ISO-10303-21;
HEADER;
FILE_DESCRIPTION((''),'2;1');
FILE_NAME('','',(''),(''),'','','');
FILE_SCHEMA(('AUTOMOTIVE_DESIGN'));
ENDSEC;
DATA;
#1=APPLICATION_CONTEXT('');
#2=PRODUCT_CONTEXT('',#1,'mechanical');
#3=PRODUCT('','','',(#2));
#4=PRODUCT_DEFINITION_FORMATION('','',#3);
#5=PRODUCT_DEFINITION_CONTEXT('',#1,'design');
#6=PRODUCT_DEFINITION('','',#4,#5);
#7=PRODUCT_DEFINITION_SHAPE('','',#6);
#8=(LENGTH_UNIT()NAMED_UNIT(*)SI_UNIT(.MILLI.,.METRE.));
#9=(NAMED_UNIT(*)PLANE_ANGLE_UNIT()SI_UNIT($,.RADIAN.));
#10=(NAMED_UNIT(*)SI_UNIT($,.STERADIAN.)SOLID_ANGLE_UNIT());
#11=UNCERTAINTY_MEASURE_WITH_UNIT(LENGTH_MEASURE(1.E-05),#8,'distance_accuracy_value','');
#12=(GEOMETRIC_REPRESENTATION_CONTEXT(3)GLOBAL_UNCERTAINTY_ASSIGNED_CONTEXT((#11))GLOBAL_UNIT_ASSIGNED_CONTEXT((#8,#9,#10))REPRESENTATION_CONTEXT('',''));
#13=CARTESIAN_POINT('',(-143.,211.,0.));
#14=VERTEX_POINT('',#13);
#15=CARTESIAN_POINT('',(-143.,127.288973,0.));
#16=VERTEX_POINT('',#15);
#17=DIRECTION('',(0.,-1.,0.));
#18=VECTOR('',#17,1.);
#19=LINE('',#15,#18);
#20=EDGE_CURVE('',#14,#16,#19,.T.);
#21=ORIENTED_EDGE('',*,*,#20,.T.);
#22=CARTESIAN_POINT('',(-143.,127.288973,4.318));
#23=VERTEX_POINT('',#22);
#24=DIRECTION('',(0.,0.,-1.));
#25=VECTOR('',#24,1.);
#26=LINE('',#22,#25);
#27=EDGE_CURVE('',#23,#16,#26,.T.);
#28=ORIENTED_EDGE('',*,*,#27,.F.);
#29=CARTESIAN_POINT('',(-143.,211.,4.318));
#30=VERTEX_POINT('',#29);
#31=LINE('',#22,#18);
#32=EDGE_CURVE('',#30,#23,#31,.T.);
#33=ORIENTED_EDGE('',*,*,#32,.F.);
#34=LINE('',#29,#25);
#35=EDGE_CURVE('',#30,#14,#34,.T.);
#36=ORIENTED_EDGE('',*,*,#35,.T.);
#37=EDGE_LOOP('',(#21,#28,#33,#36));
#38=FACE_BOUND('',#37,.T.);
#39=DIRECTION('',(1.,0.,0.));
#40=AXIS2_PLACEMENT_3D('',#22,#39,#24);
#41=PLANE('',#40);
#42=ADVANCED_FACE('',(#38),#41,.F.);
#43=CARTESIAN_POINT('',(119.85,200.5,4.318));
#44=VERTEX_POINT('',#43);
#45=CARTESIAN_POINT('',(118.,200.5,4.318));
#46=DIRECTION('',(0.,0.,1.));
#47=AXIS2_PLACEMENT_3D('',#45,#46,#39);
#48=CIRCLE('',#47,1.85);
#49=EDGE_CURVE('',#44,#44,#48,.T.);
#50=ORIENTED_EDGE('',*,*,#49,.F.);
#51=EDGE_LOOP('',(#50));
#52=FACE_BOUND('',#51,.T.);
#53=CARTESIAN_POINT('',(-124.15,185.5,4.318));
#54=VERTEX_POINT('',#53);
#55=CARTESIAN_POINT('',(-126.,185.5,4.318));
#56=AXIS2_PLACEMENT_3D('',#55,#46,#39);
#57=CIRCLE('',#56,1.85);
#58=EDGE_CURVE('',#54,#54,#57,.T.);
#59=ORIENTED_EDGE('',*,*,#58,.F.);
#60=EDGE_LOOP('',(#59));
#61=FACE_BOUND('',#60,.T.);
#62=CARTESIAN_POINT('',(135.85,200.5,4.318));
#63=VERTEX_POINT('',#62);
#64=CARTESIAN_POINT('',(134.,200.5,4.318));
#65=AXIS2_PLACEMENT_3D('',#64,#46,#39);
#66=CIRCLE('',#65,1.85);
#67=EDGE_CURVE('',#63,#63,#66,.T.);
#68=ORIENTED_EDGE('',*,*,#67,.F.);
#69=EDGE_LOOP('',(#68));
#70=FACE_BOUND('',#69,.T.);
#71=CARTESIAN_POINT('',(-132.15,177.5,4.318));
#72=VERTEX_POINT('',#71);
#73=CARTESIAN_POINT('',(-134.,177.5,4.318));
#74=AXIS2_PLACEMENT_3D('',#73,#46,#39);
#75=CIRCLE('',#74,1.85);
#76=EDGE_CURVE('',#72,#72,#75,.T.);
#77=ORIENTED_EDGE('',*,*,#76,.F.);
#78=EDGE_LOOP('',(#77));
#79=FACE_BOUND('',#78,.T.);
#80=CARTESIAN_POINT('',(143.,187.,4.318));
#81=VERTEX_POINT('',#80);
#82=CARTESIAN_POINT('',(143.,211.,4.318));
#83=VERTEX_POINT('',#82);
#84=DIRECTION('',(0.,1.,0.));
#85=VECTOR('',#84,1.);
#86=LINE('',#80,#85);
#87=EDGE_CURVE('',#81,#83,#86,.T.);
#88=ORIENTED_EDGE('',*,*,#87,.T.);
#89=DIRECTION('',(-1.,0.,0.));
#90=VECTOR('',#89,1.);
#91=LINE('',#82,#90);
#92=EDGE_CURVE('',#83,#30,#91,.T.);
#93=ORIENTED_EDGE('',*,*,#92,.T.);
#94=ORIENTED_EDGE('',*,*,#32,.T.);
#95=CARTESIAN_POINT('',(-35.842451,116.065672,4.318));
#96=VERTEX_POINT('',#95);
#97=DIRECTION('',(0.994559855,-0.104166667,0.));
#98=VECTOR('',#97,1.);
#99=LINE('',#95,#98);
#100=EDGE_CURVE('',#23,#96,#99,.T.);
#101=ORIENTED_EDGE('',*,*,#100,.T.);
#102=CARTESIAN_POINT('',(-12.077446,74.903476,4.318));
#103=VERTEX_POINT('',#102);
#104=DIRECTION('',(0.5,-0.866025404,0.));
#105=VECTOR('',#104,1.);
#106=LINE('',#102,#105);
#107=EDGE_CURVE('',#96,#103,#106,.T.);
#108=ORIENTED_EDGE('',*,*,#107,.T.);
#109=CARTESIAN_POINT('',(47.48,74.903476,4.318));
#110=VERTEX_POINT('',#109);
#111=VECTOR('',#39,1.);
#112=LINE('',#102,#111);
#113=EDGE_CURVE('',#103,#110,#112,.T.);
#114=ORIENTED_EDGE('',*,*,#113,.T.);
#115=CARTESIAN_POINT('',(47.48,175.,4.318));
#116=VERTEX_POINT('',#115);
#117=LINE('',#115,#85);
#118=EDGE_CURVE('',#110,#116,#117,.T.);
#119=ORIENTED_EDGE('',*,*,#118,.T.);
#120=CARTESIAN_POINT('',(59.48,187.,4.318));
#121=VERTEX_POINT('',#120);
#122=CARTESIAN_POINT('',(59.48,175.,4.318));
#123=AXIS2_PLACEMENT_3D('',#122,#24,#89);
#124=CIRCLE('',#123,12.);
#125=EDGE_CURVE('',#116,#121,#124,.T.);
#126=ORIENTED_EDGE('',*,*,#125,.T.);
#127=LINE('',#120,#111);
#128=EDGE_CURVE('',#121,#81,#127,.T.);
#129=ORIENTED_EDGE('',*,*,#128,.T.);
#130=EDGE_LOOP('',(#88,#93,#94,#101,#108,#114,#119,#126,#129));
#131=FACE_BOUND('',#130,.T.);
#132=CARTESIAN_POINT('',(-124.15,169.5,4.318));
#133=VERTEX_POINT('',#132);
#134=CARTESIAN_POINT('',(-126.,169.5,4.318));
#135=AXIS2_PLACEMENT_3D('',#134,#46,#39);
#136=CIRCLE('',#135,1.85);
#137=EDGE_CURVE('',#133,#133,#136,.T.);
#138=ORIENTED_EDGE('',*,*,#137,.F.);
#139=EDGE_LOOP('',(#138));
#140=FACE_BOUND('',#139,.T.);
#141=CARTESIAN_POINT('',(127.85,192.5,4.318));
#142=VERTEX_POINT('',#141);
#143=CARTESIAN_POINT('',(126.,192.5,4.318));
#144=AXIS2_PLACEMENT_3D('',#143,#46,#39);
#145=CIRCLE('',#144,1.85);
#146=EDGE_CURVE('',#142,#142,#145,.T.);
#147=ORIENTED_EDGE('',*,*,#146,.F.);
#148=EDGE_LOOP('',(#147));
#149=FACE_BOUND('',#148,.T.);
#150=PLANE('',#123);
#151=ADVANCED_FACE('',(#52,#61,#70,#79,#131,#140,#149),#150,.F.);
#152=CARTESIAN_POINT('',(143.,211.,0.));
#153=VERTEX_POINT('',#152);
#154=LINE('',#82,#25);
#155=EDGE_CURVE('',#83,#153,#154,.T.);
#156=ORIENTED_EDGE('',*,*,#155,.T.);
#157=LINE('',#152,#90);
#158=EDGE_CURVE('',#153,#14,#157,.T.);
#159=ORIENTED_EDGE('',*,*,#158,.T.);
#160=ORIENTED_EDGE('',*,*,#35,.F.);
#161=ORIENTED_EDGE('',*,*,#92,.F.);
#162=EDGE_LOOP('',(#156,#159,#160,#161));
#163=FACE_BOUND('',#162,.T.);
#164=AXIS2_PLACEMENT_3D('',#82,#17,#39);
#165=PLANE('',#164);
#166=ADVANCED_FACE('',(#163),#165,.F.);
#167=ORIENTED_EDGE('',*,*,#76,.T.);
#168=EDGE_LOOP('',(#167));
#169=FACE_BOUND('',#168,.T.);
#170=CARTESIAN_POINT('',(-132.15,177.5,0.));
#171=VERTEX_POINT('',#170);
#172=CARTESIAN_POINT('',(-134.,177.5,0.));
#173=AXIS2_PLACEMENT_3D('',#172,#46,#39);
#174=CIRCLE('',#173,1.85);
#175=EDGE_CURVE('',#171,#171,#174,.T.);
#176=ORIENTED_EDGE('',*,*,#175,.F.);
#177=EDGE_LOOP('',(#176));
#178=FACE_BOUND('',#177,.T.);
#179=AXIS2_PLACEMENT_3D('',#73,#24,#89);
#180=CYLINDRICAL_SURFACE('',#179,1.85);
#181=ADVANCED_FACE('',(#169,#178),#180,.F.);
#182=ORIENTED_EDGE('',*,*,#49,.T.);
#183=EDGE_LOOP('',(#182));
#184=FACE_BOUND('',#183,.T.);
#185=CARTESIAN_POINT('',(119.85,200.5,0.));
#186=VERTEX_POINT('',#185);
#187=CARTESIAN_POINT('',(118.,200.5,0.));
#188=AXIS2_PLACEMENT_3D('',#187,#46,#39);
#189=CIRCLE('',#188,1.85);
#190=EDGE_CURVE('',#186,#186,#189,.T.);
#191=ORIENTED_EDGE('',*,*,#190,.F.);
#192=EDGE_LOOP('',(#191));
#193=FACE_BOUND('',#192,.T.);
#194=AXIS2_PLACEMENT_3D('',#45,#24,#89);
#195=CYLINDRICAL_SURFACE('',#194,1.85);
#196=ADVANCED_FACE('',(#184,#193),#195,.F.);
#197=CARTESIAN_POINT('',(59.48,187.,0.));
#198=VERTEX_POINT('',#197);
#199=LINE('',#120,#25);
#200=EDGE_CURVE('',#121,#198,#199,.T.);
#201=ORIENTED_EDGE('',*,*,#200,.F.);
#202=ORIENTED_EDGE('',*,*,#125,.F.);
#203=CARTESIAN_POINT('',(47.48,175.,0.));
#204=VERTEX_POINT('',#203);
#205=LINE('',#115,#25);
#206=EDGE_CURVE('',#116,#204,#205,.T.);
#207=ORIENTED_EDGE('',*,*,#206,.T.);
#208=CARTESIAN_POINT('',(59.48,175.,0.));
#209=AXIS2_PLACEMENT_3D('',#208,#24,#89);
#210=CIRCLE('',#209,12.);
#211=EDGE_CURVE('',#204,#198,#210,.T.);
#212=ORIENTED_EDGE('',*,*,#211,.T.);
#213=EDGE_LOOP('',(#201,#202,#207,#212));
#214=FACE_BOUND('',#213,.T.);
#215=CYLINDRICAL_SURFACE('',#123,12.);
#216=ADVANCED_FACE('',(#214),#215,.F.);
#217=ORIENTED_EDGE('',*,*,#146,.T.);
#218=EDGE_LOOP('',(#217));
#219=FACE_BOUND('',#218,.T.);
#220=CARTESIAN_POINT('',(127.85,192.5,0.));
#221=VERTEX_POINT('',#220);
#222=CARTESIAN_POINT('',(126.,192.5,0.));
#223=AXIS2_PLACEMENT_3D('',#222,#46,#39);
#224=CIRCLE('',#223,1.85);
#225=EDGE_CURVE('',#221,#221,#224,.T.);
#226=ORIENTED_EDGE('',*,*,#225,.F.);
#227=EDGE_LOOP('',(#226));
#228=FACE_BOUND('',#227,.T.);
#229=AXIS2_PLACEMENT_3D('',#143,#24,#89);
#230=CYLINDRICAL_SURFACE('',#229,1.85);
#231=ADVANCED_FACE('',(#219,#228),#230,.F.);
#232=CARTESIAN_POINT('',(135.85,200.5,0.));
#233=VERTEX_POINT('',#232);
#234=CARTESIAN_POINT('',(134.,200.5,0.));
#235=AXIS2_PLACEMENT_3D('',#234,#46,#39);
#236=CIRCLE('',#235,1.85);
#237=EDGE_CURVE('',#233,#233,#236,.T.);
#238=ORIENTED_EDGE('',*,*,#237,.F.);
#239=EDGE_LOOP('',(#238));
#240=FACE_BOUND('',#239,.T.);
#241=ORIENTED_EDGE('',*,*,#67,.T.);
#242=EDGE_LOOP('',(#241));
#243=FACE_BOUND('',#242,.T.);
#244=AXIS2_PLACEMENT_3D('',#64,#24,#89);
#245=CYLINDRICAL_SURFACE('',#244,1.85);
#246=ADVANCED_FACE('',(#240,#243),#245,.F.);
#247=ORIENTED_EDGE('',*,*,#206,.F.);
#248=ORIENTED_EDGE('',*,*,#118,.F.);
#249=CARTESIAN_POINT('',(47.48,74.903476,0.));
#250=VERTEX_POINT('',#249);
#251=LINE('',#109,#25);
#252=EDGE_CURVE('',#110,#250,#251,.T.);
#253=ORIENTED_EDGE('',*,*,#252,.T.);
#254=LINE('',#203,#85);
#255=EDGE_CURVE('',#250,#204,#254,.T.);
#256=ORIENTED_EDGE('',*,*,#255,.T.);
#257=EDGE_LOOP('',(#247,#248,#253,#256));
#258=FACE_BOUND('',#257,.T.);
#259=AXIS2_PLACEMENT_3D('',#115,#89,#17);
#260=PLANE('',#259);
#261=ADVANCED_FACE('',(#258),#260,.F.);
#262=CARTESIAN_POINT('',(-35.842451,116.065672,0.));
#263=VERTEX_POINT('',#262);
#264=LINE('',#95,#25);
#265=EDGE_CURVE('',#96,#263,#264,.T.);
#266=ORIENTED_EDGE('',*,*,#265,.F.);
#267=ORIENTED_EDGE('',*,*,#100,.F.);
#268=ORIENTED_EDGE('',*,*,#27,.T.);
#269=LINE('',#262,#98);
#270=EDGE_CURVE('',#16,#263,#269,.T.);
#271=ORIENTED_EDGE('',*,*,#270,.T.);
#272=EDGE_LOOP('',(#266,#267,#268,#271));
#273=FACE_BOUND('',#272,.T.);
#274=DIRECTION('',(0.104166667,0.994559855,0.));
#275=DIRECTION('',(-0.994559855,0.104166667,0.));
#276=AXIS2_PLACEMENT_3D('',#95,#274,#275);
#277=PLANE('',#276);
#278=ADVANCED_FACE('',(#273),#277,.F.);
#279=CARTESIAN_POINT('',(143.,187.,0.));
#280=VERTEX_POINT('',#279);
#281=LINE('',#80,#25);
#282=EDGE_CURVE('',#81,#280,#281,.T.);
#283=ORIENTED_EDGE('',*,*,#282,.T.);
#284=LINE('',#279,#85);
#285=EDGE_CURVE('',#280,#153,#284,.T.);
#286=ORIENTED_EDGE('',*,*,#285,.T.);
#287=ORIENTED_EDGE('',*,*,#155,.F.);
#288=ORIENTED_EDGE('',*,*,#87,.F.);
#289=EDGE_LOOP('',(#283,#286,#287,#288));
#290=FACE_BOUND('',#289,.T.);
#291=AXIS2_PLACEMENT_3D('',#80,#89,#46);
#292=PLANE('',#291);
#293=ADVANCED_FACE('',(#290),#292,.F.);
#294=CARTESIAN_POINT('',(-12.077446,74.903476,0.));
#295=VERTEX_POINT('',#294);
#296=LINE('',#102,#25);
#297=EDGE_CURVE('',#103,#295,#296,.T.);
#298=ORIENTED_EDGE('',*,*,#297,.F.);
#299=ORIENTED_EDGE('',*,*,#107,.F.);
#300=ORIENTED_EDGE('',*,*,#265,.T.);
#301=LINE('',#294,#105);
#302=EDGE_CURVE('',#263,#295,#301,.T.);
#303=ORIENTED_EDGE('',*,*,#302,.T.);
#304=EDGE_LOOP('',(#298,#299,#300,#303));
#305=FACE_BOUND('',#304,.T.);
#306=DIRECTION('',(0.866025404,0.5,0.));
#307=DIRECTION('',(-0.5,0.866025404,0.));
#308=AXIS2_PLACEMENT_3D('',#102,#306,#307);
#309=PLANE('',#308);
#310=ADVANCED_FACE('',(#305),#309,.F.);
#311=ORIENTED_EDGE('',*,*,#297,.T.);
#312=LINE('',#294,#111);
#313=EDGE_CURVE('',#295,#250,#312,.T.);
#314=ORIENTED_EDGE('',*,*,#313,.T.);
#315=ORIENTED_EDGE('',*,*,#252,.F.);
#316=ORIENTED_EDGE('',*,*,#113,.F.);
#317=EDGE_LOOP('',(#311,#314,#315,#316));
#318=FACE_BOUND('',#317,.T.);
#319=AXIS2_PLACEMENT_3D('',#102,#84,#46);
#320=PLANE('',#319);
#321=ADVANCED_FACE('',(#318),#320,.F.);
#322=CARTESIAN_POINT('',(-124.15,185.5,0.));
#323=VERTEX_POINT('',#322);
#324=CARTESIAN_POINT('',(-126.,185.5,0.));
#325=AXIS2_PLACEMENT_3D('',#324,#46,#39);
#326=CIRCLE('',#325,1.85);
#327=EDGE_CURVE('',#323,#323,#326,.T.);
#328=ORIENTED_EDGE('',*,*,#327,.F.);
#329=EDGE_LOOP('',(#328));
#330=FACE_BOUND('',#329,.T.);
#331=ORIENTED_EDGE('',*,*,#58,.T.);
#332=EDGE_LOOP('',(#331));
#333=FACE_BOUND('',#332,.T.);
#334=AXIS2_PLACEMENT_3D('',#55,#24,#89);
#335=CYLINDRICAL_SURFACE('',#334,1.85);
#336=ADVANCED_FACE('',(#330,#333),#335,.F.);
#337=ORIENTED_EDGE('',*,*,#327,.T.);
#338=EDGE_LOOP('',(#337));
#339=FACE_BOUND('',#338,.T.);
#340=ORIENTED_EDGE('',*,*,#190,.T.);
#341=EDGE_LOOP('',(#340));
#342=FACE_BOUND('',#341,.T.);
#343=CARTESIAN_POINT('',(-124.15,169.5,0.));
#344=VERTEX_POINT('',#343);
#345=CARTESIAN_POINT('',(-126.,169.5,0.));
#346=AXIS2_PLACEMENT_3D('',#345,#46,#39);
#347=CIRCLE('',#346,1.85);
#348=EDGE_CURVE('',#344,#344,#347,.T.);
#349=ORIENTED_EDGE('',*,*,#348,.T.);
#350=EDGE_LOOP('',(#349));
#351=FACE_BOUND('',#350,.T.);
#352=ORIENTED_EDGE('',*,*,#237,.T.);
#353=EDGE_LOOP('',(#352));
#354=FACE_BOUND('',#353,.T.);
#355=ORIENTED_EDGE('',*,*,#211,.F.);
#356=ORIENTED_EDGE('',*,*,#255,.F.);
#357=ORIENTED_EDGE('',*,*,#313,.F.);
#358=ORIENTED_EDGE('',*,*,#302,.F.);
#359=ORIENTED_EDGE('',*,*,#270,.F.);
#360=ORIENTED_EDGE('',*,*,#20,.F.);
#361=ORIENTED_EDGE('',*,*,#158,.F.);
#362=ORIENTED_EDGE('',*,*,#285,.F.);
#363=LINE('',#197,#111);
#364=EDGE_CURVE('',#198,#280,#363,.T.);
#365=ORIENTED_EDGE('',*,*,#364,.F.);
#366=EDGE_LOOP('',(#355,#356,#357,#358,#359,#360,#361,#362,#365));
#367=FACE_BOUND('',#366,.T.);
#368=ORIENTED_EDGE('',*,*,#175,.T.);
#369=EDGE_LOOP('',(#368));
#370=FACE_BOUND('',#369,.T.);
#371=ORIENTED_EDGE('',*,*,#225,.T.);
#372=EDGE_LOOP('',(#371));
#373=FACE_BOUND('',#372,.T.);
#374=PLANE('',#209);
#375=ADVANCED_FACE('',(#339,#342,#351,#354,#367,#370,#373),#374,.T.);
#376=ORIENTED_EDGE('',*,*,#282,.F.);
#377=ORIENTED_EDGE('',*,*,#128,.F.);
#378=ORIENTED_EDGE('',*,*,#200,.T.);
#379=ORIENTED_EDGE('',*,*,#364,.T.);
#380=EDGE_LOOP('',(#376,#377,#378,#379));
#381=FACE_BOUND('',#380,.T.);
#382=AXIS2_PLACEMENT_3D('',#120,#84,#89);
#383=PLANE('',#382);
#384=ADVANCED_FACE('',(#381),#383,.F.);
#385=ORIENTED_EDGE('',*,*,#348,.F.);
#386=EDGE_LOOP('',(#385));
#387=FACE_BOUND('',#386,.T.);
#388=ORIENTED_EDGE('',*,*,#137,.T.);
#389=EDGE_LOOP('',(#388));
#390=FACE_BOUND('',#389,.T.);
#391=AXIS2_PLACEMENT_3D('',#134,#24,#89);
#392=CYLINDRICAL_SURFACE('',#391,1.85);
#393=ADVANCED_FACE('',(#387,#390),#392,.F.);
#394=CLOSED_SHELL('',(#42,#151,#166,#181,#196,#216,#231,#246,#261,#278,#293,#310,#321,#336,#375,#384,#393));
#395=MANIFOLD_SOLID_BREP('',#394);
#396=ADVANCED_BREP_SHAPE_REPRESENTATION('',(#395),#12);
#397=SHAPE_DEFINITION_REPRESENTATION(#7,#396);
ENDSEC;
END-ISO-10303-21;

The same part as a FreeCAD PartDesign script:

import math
import FreeCAD as App
import Part
import Sketcher

V = App.Vector
Q = App.Units.Quantity

doc = App.newDocument("Part")
body = doc.addObject("PartDesign::Body", "Body")

# Sketch on XY plane
sketch1 = body.newObject("Sketcher::SketchObject", "Sketch")
sketch1.AttachmentSupport = (doc.getObject("XY_Plane"), [""])
sketch1.MapMode = "FlatFace"
sketch1.addGeometry([
    Part.LineSegment(V(47.5, 74.9, 0), V(47.5, 175, 0)),  # 0
    Part.ArcOfCircle(Part.Circle(V(59.5, 175, 0), V(0, 0, 1), 12), math.radians(90), math.radians(180)),  # 1
    Part.LineSegment(V(59.5, 187, 0), V(143, 187, 0)),  # 2
    Part.LineSegment(V(143, 187, 0), V(143, 211, 0)),  # 3
    Part.LineSegment(V(143, 211, 0), V(-143, 211, 0)),  # 4
    Part.LineSegment(V(-143, 211, 0), V(-143, 127.3, 0)),  # 5
    Part.LineSegment(V(-143, 127.3, 0), V(-35.8, 116.1, 0)),  # 6
    Part.LineSegment(V(-35.8, 116.1, 0), V(-12.1, 74.9, 0)),  # 7
    Part.LineSegment(V(-12.1, 74.9, 0), V(47.5, 74.9, 0)),  # 8
    Part.Circle(V(-126, 169.5, 0), V(0, 0, 1), 1.9),  # 9
    Part.Circle(V(-134, 177.5, 0), V(0, 0, 1), 1.9),  # 10
    Part.Circle(V(126, 192.5, 0), V(0, 0, 1), 1.9),  # 11
    Part.Circle(V(134, 200.5, 0), V(0, 0, 1), 1.9),  # 12
    Part.Circle(V(118, 200.5, 0), V(0, 0, 1), 1.9),  # 13
    Part.Circle(V(-126, 185.5, 0), V(0, 0, 1), 1.9),  # 14
], False)
sketch1.addConstraint([
    Sketcher.Constraint("Tangent", 0, 2, 1, 2),
    Sketcher.Constraint("Tangent", 1, 1, 2, 1),
    Sketcher.Constraint("Coincident", 2, 2, 3, 1),
    Sketcher.Constraint("Coincident", 3, 2, 4, 1),
    Sketcher.Constraint("Coincident", 4, 2, 5, 1),
    Sketcher.Constraint("Coincident", 5, 2, 6, 1),
    Sketcher.Constraint("Coincident", 6, 2, 7, 1),
    Sketcher.Constraint("Coincident", 7, 2, 8, 1),
    Sketcher.Constraint("Coincident", 8, 2, 0, 1),
    Sketcher.Constraint("Vertical", 0),
    Sketcher.Constraint("Horizontal", 2),
    Sketcher.Constraint("Vertical", 3),
    Sketcher.Constraint("Horizontal", 4),
    Sketcher.Constraint("Vertical", 5),
    Sketcher.Constraint("Horizontal", 8),
    Sketcher.Constraint("Equal", 9, 10),
    Sketcher.Constraint("Equal", 10, 11),
    Sketcher.Constraint("Equal", 11, 12),
    Sketcher.Constraint("Equal", 12, 13),
    Sketcher.Constraint("Equal", 13, 14),
    Sketcher.Constraint("Horizontal", 12, 3, 13, 3),
    Sketcher.Constraint("Vertical", 9, 3, 14, 3),
    Sketcher.Constraint("Radius", 1, 12.0),
    Sketcher.Constraint("Diameter", 9, 3.7),
    Sketcher.Constraint("DistanceX", 4, 2, 4, 1, 286.0),
    Sketcher.Constraint("DistanceY", 3, 1, 3, 2, 24.0),
    Sketcher.Constraint("Angle", 7, Q("-60 deg")),
    Sketcher.Constraint("DistanceY", -1, 1, 1, 3, 175.0),
    Sketcher.Constraint("DistanceX", 9, 3, -1, 1, 126.0),
    Sketcher.Constraint("DistanceX", 10, 3, -1, 1, 134.0),
    Sketcher.Constraint("DistanceX", -1, 1, 11, 3, 126.0),
    Sketcher.Constraint("DistanceX", -1, 1, 12, 3, 134.0),
    Sketcher.Constraint("DistanceX", -1, 1, 13, 3, 118.0),
    Sketcher.Constraint("DistanceX", -1, 1, 2, 2, 143.0),
    Sketcher.Constraint("DistanceY", 9, 3, 10, 3, 8.0),
    Sketcher.Constraint("DistanceY", 9, 3, 11, 3, 23.0),
    Sketcher.Constraint("DistanceY", 11, 3, 12, 3, 8.0),
    Sketcher.Constraint("DistanceY", 10, 3, 14, 3, 8.0),
    Sketcher.Constraint("DistanceX", 2, 1, 2, 2, 83.52),
    Sketcher.Constraint("DistanceY", -1, 1, 9, 3, 169.5),
    Sketcher.Constraint("DistanceY", 6, 2, 5, 2, 11.223301),
    Sketcher.Constraint("Distance", 6, 107.74369),
    Sketcher.Constraint("Distance", 7, 47.53001),
    Sketcher.Constraint("DistanceY", 0, 1, 0, 2, 100.096524),
])
pad1 = body.newObject("PartDesign::Pad", "Pad")
pad1.Profile = sketch1
pad1.Length = 4.318

doc.recompute()
